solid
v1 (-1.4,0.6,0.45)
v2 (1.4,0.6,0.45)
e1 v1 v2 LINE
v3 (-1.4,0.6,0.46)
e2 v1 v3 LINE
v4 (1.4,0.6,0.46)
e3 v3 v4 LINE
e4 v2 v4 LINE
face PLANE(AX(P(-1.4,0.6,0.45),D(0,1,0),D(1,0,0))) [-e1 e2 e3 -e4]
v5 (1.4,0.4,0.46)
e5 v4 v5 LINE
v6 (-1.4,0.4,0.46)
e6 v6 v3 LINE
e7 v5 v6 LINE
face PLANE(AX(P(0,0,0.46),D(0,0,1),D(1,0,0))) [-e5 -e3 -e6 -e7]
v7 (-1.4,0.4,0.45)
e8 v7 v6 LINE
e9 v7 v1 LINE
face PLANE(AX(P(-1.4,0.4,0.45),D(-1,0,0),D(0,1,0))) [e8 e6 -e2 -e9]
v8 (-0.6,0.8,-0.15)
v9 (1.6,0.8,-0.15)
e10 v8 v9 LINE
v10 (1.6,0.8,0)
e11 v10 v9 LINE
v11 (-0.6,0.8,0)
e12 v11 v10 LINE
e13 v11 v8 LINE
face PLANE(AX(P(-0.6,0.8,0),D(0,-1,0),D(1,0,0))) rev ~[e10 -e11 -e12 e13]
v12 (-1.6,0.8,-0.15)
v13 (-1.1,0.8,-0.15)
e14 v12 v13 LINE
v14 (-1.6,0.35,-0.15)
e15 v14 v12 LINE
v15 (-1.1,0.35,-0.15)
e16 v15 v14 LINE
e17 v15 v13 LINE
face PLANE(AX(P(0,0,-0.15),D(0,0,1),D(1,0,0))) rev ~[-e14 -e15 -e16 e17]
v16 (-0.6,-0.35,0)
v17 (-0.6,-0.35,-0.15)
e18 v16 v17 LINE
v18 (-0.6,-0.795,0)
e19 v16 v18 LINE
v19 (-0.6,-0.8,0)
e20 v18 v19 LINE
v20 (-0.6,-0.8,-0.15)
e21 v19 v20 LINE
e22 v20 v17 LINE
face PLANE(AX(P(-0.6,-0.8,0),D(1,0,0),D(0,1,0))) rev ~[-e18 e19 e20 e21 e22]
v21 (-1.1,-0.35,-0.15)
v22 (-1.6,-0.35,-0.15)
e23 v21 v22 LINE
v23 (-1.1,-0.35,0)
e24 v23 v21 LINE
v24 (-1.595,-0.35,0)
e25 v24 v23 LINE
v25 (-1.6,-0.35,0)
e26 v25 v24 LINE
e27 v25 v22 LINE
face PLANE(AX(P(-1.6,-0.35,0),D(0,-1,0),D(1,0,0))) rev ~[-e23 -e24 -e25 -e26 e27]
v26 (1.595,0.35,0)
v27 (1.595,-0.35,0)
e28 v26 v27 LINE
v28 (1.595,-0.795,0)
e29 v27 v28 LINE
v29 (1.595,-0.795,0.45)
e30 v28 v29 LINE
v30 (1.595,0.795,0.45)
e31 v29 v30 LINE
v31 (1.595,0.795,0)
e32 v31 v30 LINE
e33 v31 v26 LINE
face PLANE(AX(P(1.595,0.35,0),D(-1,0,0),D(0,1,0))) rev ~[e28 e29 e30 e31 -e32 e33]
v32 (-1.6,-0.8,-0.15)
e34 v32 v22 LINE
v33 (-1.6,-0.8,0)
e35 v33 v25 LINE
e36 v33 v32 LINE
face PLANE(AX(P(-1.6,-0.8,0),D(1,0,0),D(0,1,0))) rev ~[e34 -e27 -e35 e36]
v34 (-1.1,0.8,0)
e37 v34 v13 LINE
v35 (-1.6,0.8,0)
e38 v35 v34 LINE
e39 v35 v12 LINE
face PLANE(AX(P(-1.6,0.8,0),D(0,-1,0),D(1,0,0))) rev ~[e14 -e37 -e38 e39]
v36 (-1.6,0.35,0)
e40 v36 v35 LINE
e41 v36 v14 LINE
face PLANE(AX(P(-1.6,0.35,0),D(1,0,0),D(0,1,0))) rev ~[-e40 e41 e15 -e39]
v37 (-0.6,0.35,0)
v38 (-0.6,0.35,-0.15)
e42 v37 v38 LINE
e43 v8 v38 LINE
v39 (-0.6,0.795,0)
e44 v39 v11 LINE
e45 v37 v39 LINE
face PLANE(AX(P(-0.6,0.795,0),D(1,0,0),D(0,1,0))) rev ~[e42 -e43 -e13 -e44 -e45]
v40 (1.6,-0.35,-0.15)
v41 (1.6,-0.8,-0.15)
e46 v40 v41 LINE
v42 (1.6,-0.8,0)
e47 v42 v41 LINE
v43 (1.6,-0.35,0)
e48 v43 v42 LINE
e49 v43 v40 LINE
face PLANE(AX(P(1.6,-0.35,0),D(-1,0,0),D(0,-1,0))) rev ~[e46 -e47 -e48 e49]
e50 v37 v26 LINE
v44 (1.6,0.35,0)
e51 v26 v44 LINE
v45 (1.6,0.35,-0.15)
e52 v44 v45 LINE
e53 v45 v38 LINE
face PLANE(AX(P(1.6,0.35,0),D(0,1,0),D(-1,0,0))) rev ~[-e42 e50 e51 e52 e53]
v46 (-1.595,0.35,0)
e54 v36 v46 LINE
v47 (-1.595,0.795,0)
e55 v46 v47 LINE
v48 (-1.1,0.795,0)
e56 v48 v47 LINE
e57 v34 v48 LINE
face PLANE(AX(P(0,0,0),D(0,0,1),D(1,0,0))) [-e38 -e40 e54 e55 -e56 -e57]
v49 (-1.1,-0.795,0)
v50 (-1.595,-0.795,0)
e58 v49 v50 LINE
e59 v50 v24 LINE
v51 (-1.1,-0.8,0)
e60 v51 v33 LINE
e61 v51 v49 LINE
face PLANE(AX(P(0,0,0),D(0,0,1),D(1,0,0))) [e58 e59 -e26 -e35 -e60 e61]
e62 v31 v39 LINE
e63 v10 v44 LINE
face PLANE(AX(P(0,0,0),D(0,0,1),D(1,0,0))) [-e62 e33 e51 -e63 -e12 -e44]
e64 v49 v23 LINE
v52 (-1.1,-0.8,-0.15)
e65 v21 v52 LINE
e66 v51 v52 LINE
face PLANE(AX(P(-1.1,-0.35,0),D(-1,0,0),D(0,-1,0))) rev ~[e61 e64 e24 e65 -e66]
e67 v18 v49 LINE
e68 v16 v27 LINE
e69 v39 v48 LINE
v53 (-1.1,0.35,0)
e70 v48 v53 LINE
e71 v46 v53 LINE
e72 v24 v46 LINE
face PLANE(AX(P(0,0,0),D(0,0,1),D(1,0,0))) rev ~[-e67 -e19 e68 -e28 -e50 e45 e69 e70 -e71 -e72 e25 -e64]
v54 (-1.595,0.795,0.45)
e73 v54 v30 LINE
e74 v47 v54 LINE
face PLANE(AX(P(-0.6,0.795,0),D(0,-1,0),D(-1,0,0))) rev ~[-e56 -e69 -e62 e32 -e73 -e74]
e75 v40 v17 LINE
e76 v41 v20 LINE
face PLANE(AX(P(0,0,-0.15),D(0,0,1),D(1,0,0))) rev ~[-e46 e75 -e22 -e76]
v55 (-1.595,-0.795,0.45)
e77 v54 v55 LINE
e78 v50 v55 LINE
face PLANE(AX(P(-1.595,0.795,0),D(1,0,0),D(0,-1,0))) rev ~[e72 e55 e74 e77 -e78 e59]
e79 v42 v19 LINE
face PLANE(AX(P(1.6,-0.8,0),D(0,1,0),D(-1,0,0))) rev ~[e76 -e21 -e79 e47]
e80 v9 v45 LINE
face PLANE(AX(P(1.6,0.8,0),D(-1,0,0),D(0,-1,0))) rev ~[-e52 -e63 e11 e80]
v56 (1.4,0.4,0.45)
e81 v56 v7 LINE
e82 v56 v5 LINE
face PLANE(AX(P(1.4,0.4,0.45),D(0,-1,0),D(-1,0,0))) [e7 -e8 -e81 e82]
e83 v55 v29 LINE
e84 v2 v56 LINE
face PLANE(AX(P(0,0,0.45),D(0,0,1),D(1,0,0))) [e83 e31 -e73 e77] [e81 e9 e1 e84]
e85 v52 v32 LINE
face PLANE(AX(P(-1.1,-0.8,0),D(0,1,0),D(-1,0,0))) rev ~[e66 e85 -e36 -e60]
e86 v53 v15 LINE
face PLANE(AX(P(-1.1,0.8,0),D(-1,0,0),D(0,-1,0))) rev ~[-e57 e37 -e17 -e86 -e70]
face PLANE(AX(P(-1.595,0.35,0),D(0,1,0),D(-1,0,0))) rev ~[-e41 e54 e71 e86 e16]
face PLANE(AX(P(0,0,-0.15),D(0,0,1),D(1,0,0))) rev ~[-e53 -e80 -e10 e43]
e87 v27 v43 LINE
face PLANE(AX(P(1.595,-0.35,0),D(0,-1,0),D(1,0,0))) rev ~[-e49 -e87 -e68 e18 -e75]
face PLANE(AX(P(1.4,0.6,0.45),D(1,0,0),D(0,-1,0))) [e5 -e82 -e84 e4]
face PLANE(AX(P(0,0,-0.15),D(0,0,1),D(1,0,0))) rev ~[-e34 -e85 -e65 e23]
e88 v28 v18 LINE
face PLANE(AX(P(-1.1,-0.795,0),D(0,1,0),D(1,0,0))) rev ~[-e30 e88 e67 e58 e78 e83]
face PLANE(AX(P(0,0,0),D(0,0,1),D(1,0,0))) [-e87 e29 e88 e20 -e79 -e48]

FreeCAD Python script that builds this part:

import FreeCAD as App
import Part
import Sketcher
from FreeCAD import Vector
Q = App.Units.Quantity


def add_polygon(sketch, points):
    """Adds a closed chain of lines whose ends are joined by coincident constraints."""
    first, n = sketch.GeometryCount, len(points)
    for a, b in zip(points, points[1:] + points[:1]):
        sketch.addGeometry(Part.LineSegment(App.Vector(*a, 0), App.Vector(*b, 0)), False)
    for i in range(n):
        sketch.addConstraint(Sketcher.Constraint("Coincident", first + i, 2, first + (i + 1) % n, 1))

doc = App.newDocument("Part")
body = doc.addObject("PartDesign::Body", "Body")
body.AllowCompound = True

sketch1 = doc.addObject("Sketcher::SketchObject", "Sketch")
body.addObject(sketch1)
sketch1.AttachmentSupport = (doc.XY_Plane, [""])
sketch1.MapMode = "FlatFace"
add_polygon(sketch1, [(-1.1, 0.8), (-1.6, 0.8), (-1.6, 0.35), (-1.1, 0.35)])
add_polygon(sketch1, [(1.6, 0.8), (-0.6, 0.8), (-0.6, 0.35), (1.6, 0.35)])
add_polygon(sketch1, [(-1.6, -0.35), (-1.6, -0.8), (-1.1, -0.8), (-1.1, -0.35)])
add_polygon(sketch1, [(1.6, -0.8), (1.6, -0.35), (-0.6, -0.35), (-0.6, -0.8)])
sketch1.addConstraint(Sketcher.Constraint("Horizontal", 0))
sketch1.addConstraint(Sketcher.Constraint("Vertical", 1))
sketch1.addConstraint(Sketcher.Constraint("Horizontal", 2))
sketch1.addConstraint(Sketcher.Constraint("Vertical", 3))
sketch1.addConstraint(Sketcher.Constraint("Horizontal", 4))
sketch1.addConstraint(Sketcher.Constraint("Vertical", 5))
sketch1.addConstraint(Sketcher.Constraint("Horizontal", 6))
sketch1.addConstraint(Sketcher.Constraint("Vertical", 7))
sketch1.addConstraint(Sketcher.Constraint("Vertical", 8))
sketch1.addConstraint(Sketcher.Constraint("Horizontal", 9))
sketch1.addConstraint(Sketcher.Constraint("Vertical", 10))
sketch1.addConstraint(Sketcher.Constraint("Horizontal", 11))
sketch1.addConstraint(Sketcher.Constraint("Vertical", 12))
sketch1.addConstraint(Sketcher.Constraint("Horizontal", 13))
sketch1.addConstraint(Sketcher.Constraint("Vertical", 14))
sketch1.addConstraint(Sketcher.Constraint("Horizontal", 15))
sketch1.addConstraint(Sketcher.Constraint("Symmetric", 7, 2, 8, 2, -1, 1))
sketch1.addConstraint(Sketcher.Constraint("Symmetric", 1, 2, 12, 2, -1, 1))
sketch1.addConstraint(Sketcher.Constraint("Symmetric", 1, 2, 6, 2, -2))
sketch1.addConstraint(Sketcher.Constraint("Symmetric", 3, 2, 9, 2, -1))
sketch1.addConstraint(Sketcher.Constraint("Symmetric", 4, 2, 14, 2, -1))
sketch1.addConstraint(Sketcher.Constraint("Horizontal", 11, 2, 12, 2))
sketch1.addConstraint(Sketcher.Constraint("DistanceX", 0, 2, 0, 1, Q("0.5 mm")))
sketch1.addConstraint(Sketcher.Constraint("DistanceX", 4, 2, 4, 1, Q("2.2 mm")))
sketch1.addConstraint(Sketcher.Constraint("DistanceY", 1, 2, 1, 1, Q("0.45 mm")))
sketch1.addConstraint(Sketcher.Constraint("DistanceX", 3, 2, 4, 2, Q("0.5 mm")))
sketch1.addConstraint(Sketcher.Constraint("DistanceY", 10, 2, 2, 2, Q("0.7 mm")))
pad1 = doc.addObject("PartDesign::Pad", "Pad")
body.addObject(pad1)
pad1.Profile = sketch1
pad1.Length = 0.15
pad1.Reversed = True

sketch2 = doc.addObject("Sketcher::SketchObject", "Sketch001")
body.addObject(sketch2)
sketch2.AttachmentSupport = (doc.XY_Plane, [""])
sketch2.MapMode = "FlatFace"
add_polygon(sketch2, [(-1.595, 0.795), (-1.595, -0.795), (1.595, -0.795), (1.595, 0.795)])
sketch2.addConstraint(Sketcher.Constraint("Vertical", 0))
sketch2.addConstraint(Sketcher.Constraint("Horizontal", 1))
sketch2.addConstraint(Sketcher.Constraint("Vertical", 2))
sketch2.addConstraint(Sketcher.Constraint("Horizontal", 3))
sketch2.addConstraint(Sketcher.Constraint("Symmetric", 0, 2, 2, 2, -1, 1))
sketch2.addConstraint(Sketcher.Constraint("DistanceX", 1, 1, 1, 2, Q("3.19 mm")))
sketch2.addConstraint(Sketcher.Constraint("DistanceY", 0, 2, 0, 1, Q("1.59 mm")))
pad2 = doc.addObject("PartDesign::Pad", "Pad001")
body.addObject(pad2)
pad2.Profile = sketch2
pad2.Length = 0.45

sketch3 = doc.addObject("Sketcher::SketchObject", "Sketch002")
body.addObject(sketch3)
sketch3.AttachmentSupport = (doc.XY_Plane, [""])
sketch3.MapMode = "FlatFace"
sketch3.AttachmentOffset = App.Placement(Vector(0, 0, 0.45), App.Rotation())
add_polygon(sketch3, [(1.4, 0.6), (-1.4, 0.6), (-1.4, 0.4), (1.4, 0.4)])
sketch3.addConstraint(Sketcher.Constraint("Horizontal", 0))
sketch3.addConstraint(Sketcher.Constraint("Vertical", 1))
sketch3.addConstraint(Sketcher.Constraint("Horizontal", 2))
sketch3.addConstraint(Sketcher.Constraint("Vertical", 3))
sketch3.addConstraint(Sketcher.Constraint("DistanceX", 0, 2, 0, 1, Q("2.8 mm")))
sketch3.addConstraint(Sketcher.Constraint("DistanceY", 1, 2, 1, 1, Q("0.2 mm")))
sketch3.addConstraint(Sketcher.Constraint("DistanceY", -1, 1, 1, 2, Q("0.4 mm")))
sketch3.addConstraint(Sketcher.Constraint("DistanceX", 0, 2, -1, 1, Q("1.4 mm")))
pad3 = doc.addObject("PartDesign::Pad", "Pad002")
body.addObject(pad3)
pad3.Profile = sketch3
pad3.Length = 0.01

doc.recompute()
